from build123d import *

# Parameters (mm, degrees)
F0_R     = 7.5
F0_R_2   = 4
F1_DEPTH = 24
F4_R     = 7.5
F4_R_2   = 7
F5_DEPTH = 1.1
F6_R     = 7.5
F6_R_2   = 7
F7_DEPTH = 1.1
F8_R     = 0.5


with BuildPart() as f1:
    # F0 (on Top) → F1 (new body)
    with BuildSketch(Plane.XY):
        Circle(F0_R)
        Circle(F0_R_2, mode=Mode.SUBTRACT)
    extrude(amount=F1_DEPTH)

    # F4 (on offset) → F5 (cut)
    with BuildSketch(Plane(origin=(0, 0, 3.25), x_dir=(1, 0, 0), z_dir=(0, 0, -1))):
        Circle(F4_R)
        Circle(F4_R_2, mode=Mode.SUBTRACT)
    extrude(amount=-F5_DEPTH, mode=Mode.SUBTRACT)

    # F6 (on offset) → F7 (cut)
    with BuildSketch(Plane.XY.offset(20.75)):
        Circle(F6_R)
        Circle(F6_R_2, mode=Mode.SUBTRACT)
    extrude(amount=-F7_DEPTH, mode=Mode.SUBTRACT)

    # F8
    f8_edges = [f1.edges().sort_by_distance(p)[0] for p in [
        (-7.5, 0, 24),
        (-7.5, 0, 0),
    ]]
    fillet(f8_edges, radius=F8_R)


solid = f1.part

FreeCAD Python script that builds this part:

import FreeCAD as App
import Part
import Sketcher
from FreeCAD import Vector


def edges_at(feature, points):
    """Names of the edges that pass closest to the given points."""
    edges = feature.Shape.Edges
    near = lambda p: min(range(len(edges)), key=lambda i: edges[i].distToShape(Part.Vertex(*p))[0])
    return sorted({f"Edge{near(p) + 1}" for p in points})

doc = App.newDocument("Part")
params = doc.addObject("Spreadsheet::Sheet", "Params")
for row, (alias, value) in enumerate([
    ("sketch1_diameter", "15 mm"),
    ("sketch1_diameter2", "8 mm"),
    ("pad1_length", "24 mm"),
    ("sketch2_diameter", "15 mm"),
    ("sketch2_diameter2", "14 mm"),
    ("pocket1_length", "1.1 mm"),
    ("sketch3_diameter", "15 mm"),
    ("sketch3_diameter2", "14 mm"),
    ("pocket2_length", "1.1 mm"),
    ("fillet_radius", "0.5 mm"),
], start=1):
    params.set(f"A{row}", alias)
    params.set(f"B{row}", "=" + value)
    params.setAlias(f"B{row}", alias)

body = doc.addObject("PartDesign::Body", "Body")

sketch1 = doc.addObject("Sketcher::SketchObject", "Sketch")
body.addObject(sketch1)
sketch1.AttachmentSupport = (doc.XY_Plane, [""])
sketch1.MapMode = "FlatFace"
sketch1.addGeometry([
    Part.Circle(Vector(0, 0, 0), Vector(0, 0, 1), 7.5),
    Part.Circle(Vector(0, 0, 0), Vector(0, 0, 1), 4),
], False)
sketch1.addConstraint([
    Sketcher.Constraint("Coincident", 0, 3, -1, 1),
    Sketcher.Constraint("Coincident", 1, 3, -1, 1),
    Sketcher.Constraint("Diameter", 0, 15.0),
    Sketcher.Constraint("Diameter", 1, 8.0),
])
sketch1.setExpression("Constraints[2]", "Params.sketch1_diameter")
sketch1.setExpression("Constraints[3]", "Params.sketch1_diameter2")
pad1 = doc.addObject("PartDesign::Pad", "Pad")
body.addObject(pad1)
pad1.Profile = sketch1
pad1.setExpression("Length", "Params.pad1_length")

sketch2 = doc.addObject("Sketcher::SketchObject", "Sketch001")
body.addObject(sketch2)
sketch2.AttachmentSupport = (doc.XY_Plane, [""])
sketch2.MapMode = "FlatFace"
sketch2.AttachmentOffset = App.Placement(Vector(0, 0, 3.25), App.Rotation())
sketch2.addGeometry([
    Part.Circle(Vector(0, 0, 0), Vector(0, 0, 1), 7.5),
    Part.Circle(Vector(0, 0, 0), Vector(0, 0, 1), 7),
], False)
sketch2.addConstraint([
    Sketcher.Constraint("Coincident", 0, 3, -1, 1),
    Sketcher.Constraint("Coincident", 1, 3, -1, 1),
    Sketcher.Constraint("Diameter", 0, 15.0),
    Sketcher.Constraint("Diameter", 1, 14.0),
])
sketch2.setExpression("Constraints[2]", "Params.sketch2_diameter")
sketch2.setExpression("Constraints[3]", "Params.sketch2_diameter2")
pocket1 = doc.addObject("PartDesign::Pocket", "Pocket")
body.addObject(pocket1)
pocket1.Profile = sketch2
pocket1.setExpression("Length", "Params.pocket1_length")
pocket1.Reversed = True

sketch3 = doc.addObject("Sketcher::SketchObject", "Sketch002")
body.addObject(sketch3)
sketch3.AttachmentSupport = (doc.XY_Plane, [""])
sketch3.MapMode = "FlatFace"
sketch3.AttachmentOffset = App.Placement(Vector(0, 0, 20.75), App.Rotation())
sketch3.addGeometry([
    Part.Circle(Vector(0, 0, 0), Vector(0, 0, 1), 7.5),
    Part.Circle(Vector(0, 0, 0), Vector(0, 0, 1), 7),
], False)
sketch3.addConstraint([
    Sketcher.Constraint("Coincident", 0, 3, -1, 1),
    Sketcher.Constraint("Coincident", 1, 3, -1, 1),
    Sketcher.Constraint("Diameter", 0, 15.0),
    Sketcher.Constraint("Diameter", 1, 14.0),
])
sketch3.setExpression("Constraints[2]", "Params.sketch3_diameter")
sketch3.setExpression("Constraints[3]", "Params.sketch3_diameter2")
pocket2 = doc.addObject("PartDesign::Pocket", "Pocket001")
body.addObject(pocket2)
pocket2.Profile = sketch3
pocket2.setExpression("Length", "Params.pocket2_length")
doc.recompute()

fillet = doc.addObject("PartDesign::Fillet", "Fillet")
body.addObject(fillet)
fillet.Base = (pocket2, edges_at(pocket2, [(-7.5, 0, 24), (-7.5, 0, 0)]))
fillet.setExpression("Radius", "Params.fillet_radius")

doc.recompute()
